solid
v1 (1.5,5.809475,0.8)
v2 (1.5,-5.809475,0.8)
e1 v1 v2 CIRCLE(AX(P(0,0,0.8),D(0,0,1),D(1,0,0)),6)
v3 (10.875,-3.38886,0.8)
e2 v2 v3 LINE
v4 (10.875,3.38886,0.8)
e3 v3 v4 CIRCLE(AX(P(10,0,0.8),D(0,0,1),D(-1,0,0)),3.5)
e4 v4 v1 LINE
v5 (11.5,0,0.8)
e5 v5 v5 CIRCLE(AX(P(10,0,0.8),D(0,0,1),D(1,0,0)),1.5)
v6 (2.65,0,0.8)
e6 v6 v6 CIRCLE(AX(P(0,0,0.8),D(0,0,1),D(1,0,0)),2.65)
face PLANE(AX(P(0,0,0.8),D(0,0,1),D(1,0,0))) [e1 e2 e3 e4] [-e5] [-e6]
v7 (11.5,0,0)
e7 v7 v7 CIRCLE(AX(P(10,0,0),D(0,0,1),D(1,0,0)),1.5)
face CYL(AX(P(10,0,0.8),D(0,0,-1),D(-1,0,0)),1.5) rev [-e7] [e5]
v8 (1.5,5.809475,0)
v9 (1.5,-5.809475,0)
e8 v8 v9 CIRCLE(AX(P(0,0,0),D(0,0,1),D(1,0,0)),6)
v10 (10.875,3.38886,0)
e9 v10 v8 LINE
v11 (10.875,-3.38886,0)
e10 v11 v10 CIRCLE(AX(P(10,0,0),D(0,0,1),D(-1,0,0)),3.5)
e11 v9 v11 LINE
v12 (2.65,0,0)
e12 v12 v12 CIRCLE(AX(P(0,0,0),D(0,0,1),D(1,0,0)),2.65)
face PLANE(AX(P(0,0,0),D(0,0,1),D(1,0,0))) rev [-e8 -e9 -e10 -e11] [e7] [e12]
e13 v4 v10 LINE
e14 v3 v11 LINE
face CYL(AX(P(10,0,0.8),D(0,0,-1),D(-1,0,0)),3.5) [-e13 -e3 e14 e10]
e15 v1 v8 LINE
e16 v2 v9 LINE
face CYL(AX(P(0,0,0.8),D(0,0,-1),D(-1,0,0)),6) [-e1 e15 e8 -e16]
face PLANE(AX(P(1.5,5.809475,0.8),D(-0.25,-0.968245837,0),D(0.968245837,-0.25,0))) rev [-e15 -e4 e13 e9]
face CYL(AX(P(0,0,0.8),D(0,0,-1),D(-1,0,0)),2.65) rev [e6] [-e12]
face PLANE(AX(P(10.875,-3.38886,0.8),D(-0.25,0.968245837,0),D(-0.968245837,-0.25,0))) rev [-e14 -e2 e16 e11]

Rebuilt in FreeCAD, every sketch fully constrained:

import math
import FreeCAD as App
import Part
import Sketcher
from FreeCAD import Vector

doc = App.newDocument("Part")
params = doc.addObject("Spreadsheet::Sheet", "Params")
for row, (alias, value) in enumerate([
    ("sketch1_diameter", "3 mm"),
    ("sketch1_radius", "6 mm"),
    ("sketch1_diameter2", "5.3 mm"),
    ("sketch1_radius2", "3.5 mm"),
    ("pad1_length", "0.8 mm"),
], start=1):
    params.set(f"A{row}", alias)
    params.set(f"B{row}", "=" + value)
    params.setAlias(f"B{row}", alias)

body = doc.addObject("PartDesign::Body", "Body")

# Sketch on XY plane
sketch1 = body.newObject("Sketcher::SketchObject", "Sketch")
sketch1.AttachmentSupport = (doc.getObject("XY_Plane"), [""])
sketch1.MapMode = "FlatFace"
sketch1.addGeometry(Part.LineSegment(Vector(10.9, 3.4, 0), Vector(1.5, 5.8, 0)), False)
sketch1.addGeometry(Part.ArcOfCircle(Part.Circle(Vector(0, 0, 0), Vector(0, 0, 1), 6), math.radians(76), math.radians(284)), False)
sketch1.addGeometry(Part.LineSegment(Vector(1.5, -5.8, 0), Vector(10.9, -3.4, 0)), False)
sketch1.addGeometry(Part.ArcOfCircle(Part.Circle(Vector(10, 0, 0), Vector(0, 0, 1), 3.5), math.radians(-76), math.radians(76)), False)
sketch1.addGeometry(Part.Circle(Vector(10, 0, 0), Vector(0, 0, 1), 1.5), False)
sketch1.addGeometry(Part.Circle(Vector(0, 0, 0), Vector(0, 0, 1), 2.6), False)
sketch1.addConstraint(Sketcher.Constraint("Tangent", 0, 2, 1, 1))
sketch1.addConstraint(Sketcher.Constraint("Tangent", 1, 2, 2, 1))
sketch1.addConstraint(Sketcher.Constraint("Tangent", 2, 2, 3, 1))
sketch1.addConstraint(Sketcher.Constraint("Tangent", 3, 2, 0, 1))
sketch1.addConstraint(Sketcher.Constraint("Coincident", 1, 3, -1, 1))
sketch1.addConstraint(Sketcher.Constraint("Coincident", 5, 3, -1, 1))
sketch1.addConstraint(Sketcher.Constraint("Coincident", 4, 3, 3, 3))
sketch1.addConstraint(Sketcher.Constraint("PointOnObject", 3, 3, -1))
sketch1.addConstraint(Sketcher.Constraint("Diameter", 4, 3.0))
sketch1.addConstraint(Sketcher.Constraint("Radius", 1, 6.0))
sketch1.addConstraint(Sketcher.Constraint("Diameter", 5, 5.3))
sketch1.addConstraint(Sketcher.Constraint("Radius", 3, 3.5))
sketch1.addConstraint(Sketcher.Constraint("DistanceX", -1, 1, 3, 3, 10.0))
sketch1.setExpression("Constraints[8]", "Params.sketch1_diameter")
sketch1.setExpression("Constraints[9]", "Params.sketch1_radius")
sketch1.setExpression("Constraints[10]", "Params.sketch1_diameter2")
sketch1.setExpression("Constraints[11]", "Params.sketch1_radius2")
pad1 = body.newObject("PartDesign::Pad", "Pad")
pad1.Profile = sketch1
pad1.setExpression("Length", "Params.pad1_length")

doc.recompute()
